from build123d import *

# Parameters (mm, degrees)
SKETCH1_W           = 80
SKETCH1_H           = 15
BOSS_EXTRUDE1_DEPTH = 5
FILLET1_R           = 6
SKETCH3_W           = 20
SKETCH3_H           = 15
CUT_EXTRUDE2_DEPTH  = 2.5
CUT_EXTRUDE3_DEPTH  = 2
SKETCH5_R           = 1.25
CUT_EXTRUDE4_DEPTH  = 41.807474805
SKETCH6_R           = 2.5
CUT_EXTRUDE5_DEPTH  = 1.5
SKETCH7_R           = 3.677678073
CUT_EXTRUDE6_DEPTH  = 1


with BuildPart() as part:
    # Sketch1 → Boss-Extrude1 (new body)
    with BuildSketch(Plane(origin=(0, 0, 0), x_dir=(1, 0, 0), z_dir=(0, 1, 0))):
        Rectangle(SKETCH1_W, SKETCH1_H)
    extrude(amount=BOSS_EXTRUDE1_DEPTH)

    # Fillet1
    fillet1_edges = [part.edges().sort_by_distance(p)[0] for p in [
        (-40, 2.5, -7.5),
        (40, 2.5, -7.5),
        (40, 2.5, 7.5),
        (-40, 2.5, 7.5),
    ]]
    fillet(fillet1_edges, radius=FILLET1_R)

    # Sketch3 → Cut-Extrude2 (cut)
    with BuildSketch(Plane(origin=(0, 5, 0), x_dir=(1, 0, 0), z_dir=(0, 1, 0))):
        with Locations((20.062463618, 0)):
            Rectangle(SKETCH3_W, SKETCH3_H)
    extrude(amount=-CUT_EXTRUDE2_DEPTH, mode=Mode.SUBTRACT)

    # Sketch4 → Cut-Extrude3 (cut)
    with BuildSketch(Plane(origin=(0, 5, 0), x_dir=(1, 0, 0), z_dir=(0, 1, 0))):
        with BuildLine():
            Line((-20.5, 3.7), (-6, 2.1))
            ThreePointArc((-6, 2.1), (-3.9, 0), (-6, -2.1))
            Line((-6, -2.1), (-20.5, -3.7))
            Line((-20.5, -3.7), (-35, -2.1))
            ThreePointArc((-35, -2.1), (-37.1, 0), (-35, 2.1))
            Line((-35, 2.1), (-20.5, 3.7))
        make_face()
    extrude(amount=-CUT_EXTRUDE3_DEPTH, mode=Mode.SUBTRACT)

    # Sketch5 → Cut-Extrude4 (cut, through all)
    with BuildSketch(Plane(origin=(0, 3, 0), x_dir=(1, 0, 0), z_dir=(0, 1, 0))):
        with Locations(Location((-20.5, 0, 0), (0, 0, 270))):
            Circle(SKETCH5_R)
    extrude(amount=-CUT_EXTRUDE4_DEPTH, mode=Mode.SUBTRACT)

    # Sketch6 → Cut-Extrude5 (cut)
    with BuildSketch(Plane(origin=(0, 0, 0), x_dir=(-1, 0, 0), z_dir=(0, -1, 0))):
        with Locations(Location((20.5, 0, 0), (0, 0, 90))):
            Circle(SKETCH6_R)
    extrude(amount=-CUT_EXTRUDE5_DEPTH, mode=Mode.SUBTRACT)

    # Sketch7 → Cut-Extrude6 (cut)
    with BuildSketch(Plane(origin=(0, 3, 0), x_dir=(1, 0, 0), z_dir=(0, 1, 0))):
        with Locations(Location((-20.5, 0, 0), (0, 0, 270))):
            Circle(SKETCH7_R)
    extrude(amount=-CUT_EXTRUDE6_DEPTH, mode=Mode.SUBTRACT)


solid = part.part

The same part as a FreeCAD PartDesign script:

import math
import FreeCAD as App
import Part
import Sketcher
Q = App.Units.Quantity


def edges_at(feature, points):
    """Names of the edges that pass closest to the given points."""
    edges = feature.Shape.Edges
    near = lambda p: min(range(len(edges)), key=lambda i: edges[i].distToShape(Part.Vertex(*p))[0])
    return sorted({f"Edge{near(p) + 1}" for p in points})

doc = App.newDocument("Part")
body = doc.addObject("PartDesign::Body", "Body")

# Sketch on XZ plane
sketch1 = body.newObject("Sketcher::SketchObject", "Sketch")
sketch1.AttachmentSupport = (doc.getObject("XZ_Plane"), [""])
sketch1.MapMode = "FlatFace"
sketch1.addGeometry(Part.LineSegment(App.Vector(-40, -8, 0), App.Vector(-40, 8, 0)), False)
sketch1.addGeometry(Part.LineSegment(App.Vector(-40, 8, 0), App.Vector(40, 8, 0)), False)
sketch1.addGeometry(Part.LineSegment(App.Vector(40, 8, 0), App.Vector(40, -8, 0)), False)
sketch1.addGeometry(Part.LineSegment(App.Vector(40, -8, 0), App.Vector(-40, -8, 0)), False)
sketch1.addConstraint(Sketcher.Constraint("Coincident", 0, 2, 1, 1))
sketch1.addConstraint(Sketcher.Constraint("Coincident", 1, 2, 2, 1))
sketch1.addConstraint(Sketcher.Constraint("Coincident", 2, 2, 3, 1))
sketch1.addConstraint(Sketcher.Constraint("Coincident", 3, 2, 0, 1))
sketch1.addConstraint(Sketcher.Constraint("Vertical", 0))
sketch1.addConstraint(Sketcher.Constraint("Horizontal", 1))
sketch1.addConstraint(Sketcher.Constraint("Vertical", 2))
sketch1.addConstraint(Sketcher.Constraint("Horizontal", 3))
sketch1.addConstraint(Sketcher.Constraint("Symmetric", 0, 2, 2, 2, -1, 1))
sketch1.addConstraint(Sketcher.Constraint("DistanceX", 1, 1, 1, 2, Q("80 mm")))
sketch1.addConstraint(Sketcher.Constraint("DistanceY", 0, 1, 0, 2, Q("15 mm")))
pad1 = body.newObject("PartDesign::Pad", "Pad")
pad1.Profile = sketch1
pad1.Length = 5
pad1.Reversed = True
doc.recompute()

fillet = body.newObject("PartDesign::Fillet", "Fillet")
fillet.Base = (pad1, edges_at(pad1, [
    (-40, 2.5, -7.5),
    (40, 2.5, -7.5),
    (40, 2.5, 7.5),
    (-40, 2.5, 7.5),
]))
fillet.Radius = 6

# Sketch on XZ plane
sketch2 = body.newObject("Sketcher::SketchObject", "Sketch001")
sketch2.AttachmentSupport = (doc.getObject("XZ_Plane"), [""])
sketch2.MapMode = "FlatFace"
sketch2.AttachmentOffset = App.Placement(App.Vector(0, 0, -5), App.Rotation())
sketch2.addGeometry(Part.LineSegment(App.Vector(10, -8, 0), App.Vector(10, 8, 0)), False)
sketch2.addGeometry(Part.LineSegment(App.Vector(10, 8, 0), App.Vector(30, 8, 0)), False)
sketch2.addGeometry(Part.LineSegment(App.Vector(30, 8, 0), App.Vector(30, -8, 0)), False)
sketch2.addGeometry(Part.LineSegment(App.Vector(30, -8, 0), App.Vector(10, -8, 0)), False)
sketch2.addConstraint(Sketcher.Constraint("Coincident", 0, 2, 1, 1))
sketch2.addConstraint(Sketcher.Constraint("Coincident", 1, 2, 2, 1))
sketch2.addConstraint(Sketcher.Constraint("Coincident", 2, 2, 3, 1))
sketch2.addConstraint(Sketcher.Constraint("Coincident", 3, 2, 0, 1))
sketch2.addConstraint(Sketcher.Constraint("Vertical", 0))
sketch2.addConstraint(Sketcher.Constraint("Horizontal", 1))
sketch2.addConstraint(Sketcher.Constraint("Vertical", 2))
sketch2.addConstraint(Sketcher.Constraint("Horizontal", 3))
sketch2.addConstraint(Sketcher.Constraint("DistanceX", 1, 1, 1, 2, Q("20 mm")))
sketch2.addConstraint(Sketcher.Constraint("DistanceY", 0, 1, 0, 2, Q("15 mm")))
sketch2.addConstraint(Sketcher.Constraint("DistanceY", -1, 1, 0, 2, Q("7.5 mm")))
sketch2.addConstraint(Sketcher.Constraint("DistanceX", -1, 1, 0, 2, Q("10.062464 mm")))
pocket1 = body.newObject("PartDesign::Pocket", "Pocket")
pocket1.Profile = sketch2
pocket1.Length = 2.5
pocket1.Reversed = True

# Sketch on XZ plane
sketch3 = body.newObject("Sketcher::SketchObject", "Sketch002")
sketch3.AttachmentSupport = (doc.getObject("XZ_Plane"), [""])
sketch3.MapMode = "FlatFace"
sketch3.AttachmentOffset = App.Placement(App.Vector(0, 0, -5), App.Rotation())
sketch3.addGeometry(Part.LineSegment(App.Vector(-6, -2.1, 0), App.Vector(-20.5, -3.7, 0)), False)
sketch3.addGeometry(Part.LineSegment(App.Vector(-20.5, -3.7, 0), App.Vector(-35, -2.1, 0)), False)
sketch3.addGeometry(Part.ArcOfCircle(Part.Circle(App.Vector(-35, 0, 0), App.Vector(0, 0, 1), 2.1), math.radians(90), math.radians(270)), False)
sketch3.addGeometry(Part.LineSegment(App.Vector(-35, 2.1, 0), App.Vector(-20.5, 3.7, 0)), False)
sketch3.addGeometry(Part.LineSegment(App.Vector(-20.5, 3.7, 0), App.Vector(-6, 2.1, 0)), False)
sketch3.addGeometry(Part.ArcOfCircle(Part.Circle(App.Vector(-6, 0, 0), App.Vector(0, 0, 1), 2.1), math.radians(-90), math.radians(90)), False)
sketch3.addConstraint(Sketcher.Constraint("Coincident", 0, 2, 1, 1))
sketch3.addConstraint(Sketcher.Constraint("Coincident", 1, 2, 2, 2))
sketch3.addConstraint(Sketcher.Constraint("Coincident", 2, 1, 3, 1))
sketch3.addConstraint(Sketcher.Constraint("Coincident", 3, 2, 4, 1))
sketch3.addConstraint(Sketcher.Constraint("Coincident", 4, 2, 5, 2))
sketch3.addConstraint(Sketcher.Constraint("Coincident", 5, 1, 0, 1))
sketch3.addConstraint(Sketcher.Constraint("Equal", 2, 5))
sketch3.addConstraint(Sketcher.Constraint("Symmetric", 1, 2, 2, 1, -1))
sketch3.addConstraint(Sketcher.Constraint("Symmetric", 0, 2, 3, 2, -1))
sketch3.addConstraint(Sketcher.Constraint("Symmetric", 4, 2, 5, 1, -1))
sketch3.addConstraint(Sketcher.Constraint("Parallel", 0, 3))
sketch3.addConstraint(Sketcher.Constraint("Vertical", 2, 3, 1, 2))
sketch3.addConstraint(Sketcher.Constraint("Vertical", 5, 3, 4, 2))
sketch3.addConstraint(Sketcher.Constraint("Radius", 2, Q("2.1 mm")))
sketch3.addConstraint(Sketcher.Constraint("DistanceX", 2, 3, -1, 1, Q("35 mm")))
sketch3.addConstraint(Sketcher.Constraint("DistanceX", 5, 3, -1, 1, Q("6 mm")))
sketch3.addConstraint(Sketcher.Constraint("DistanceY", 0, 2, -1, 1, Q("3.7 mm")))
pocket2 = body.newObject("PartDesign::Pocket", "Pocket001")
pocket2.Profile = sketch3
pocket2.Length = 2
pocket2.Reversed = True

# Sketch on XZ plane
sketch4 = body.newObject("Sketcher::SketchObject", "Sketch003")
sketch4.AttachmentSupport = (doc.getObject("XZ_Plane"), [""])
sketch4.MapMode = "FlatFace"
sketch4.AttachmentOffset = App.Placement(App.Vector(0, 0, -3), App.Rotation())
sketch4.addGeometry(Part.Circle(App.Vector(-20.5, 0, 0), App.Vector(0, 0, 1), 1.2), False)
sketch4.addConstraint(Sketcher.Constraint("PointOnObject", 0, 3, -1))
sketch4.addConstraint(Sketcher.Constraint("Diameter", 0, Q("2.5 mm")))
sketch4.addConstraint(Sketcher.Constraint("DistanceX", 0, 3, -1, 1, Q("20.5 mm")))
pocket3 = body.newObject("PartDesign::Pocket", "Pocket002")
pocket3.Profile = sketch4
pocket3.Type = "ThroughAll"
pocket3.Reversed = True

# Sketch on XZ plane
sketch5 = body.newObject("Sketcher::SketchObject", "Sketch004")
sketch5.AttachmentSupport = (doc.getObject("XZ_Plane"), [""])
sketch5.MapMode = "FlatFace"
sketch5.addGeometry(Part.Circle(App.Vector(-20.5, 0, 0), App.Vector(0, 0, 1), 2.5), False)
sketch5.addConstraint(Sketcher.Constraint("PointOnObject", 0, 3, -1))
sketch5.addConstraint(Sketcher.Constraint("Diameter", 0, Q("5 mm")))
sketch5.addConstraint(Sketcher.Constraint("DistanceX", 0, 3, -1, 1, Q("20.5 mm")))
pocket4 = body.newObject("PartDesign::Pocket", "Pocket003")
pocket4.Profile = sketch5
pocket4.Length = 1.5

# Sketch on XZ plane
sketch6 = body.newObject("Sketcher::SketchObject", "Sketch005")
sketch6.AttachmentSupport = (doc.getObject("XZ_Plane"), [""])
sketch6.MapMode = "FlatFace"
sketch6.AttachmentOffset = App.Placement(App.Vector(0, 0, -3), App.Rotation())
sketch6.addGeometry(Part.Circle(App.Vector(-20.5, 0, 0), App.Vector(0, 0, 1), 3.7), False)
sketch6.addConstraint(Sketcher.Constraint("PointOnObject", 0, 3, -1))
sketch6.addConstraint(Sketcher.Constraint("DistanceX", 0, 3, -1, 1, Q("20.5 mm")))
sketch6.addConstraint(Sketcher.Constraint("Diameter", 0, Q("7.355356 mm")))
pocket5 = body.newObject("PartDesign::Pocket", "Pocket004")
pocket5.Profile = sketch6
pocket5.Length = 1
pocket5.Reversed = True

doc.recompute()
